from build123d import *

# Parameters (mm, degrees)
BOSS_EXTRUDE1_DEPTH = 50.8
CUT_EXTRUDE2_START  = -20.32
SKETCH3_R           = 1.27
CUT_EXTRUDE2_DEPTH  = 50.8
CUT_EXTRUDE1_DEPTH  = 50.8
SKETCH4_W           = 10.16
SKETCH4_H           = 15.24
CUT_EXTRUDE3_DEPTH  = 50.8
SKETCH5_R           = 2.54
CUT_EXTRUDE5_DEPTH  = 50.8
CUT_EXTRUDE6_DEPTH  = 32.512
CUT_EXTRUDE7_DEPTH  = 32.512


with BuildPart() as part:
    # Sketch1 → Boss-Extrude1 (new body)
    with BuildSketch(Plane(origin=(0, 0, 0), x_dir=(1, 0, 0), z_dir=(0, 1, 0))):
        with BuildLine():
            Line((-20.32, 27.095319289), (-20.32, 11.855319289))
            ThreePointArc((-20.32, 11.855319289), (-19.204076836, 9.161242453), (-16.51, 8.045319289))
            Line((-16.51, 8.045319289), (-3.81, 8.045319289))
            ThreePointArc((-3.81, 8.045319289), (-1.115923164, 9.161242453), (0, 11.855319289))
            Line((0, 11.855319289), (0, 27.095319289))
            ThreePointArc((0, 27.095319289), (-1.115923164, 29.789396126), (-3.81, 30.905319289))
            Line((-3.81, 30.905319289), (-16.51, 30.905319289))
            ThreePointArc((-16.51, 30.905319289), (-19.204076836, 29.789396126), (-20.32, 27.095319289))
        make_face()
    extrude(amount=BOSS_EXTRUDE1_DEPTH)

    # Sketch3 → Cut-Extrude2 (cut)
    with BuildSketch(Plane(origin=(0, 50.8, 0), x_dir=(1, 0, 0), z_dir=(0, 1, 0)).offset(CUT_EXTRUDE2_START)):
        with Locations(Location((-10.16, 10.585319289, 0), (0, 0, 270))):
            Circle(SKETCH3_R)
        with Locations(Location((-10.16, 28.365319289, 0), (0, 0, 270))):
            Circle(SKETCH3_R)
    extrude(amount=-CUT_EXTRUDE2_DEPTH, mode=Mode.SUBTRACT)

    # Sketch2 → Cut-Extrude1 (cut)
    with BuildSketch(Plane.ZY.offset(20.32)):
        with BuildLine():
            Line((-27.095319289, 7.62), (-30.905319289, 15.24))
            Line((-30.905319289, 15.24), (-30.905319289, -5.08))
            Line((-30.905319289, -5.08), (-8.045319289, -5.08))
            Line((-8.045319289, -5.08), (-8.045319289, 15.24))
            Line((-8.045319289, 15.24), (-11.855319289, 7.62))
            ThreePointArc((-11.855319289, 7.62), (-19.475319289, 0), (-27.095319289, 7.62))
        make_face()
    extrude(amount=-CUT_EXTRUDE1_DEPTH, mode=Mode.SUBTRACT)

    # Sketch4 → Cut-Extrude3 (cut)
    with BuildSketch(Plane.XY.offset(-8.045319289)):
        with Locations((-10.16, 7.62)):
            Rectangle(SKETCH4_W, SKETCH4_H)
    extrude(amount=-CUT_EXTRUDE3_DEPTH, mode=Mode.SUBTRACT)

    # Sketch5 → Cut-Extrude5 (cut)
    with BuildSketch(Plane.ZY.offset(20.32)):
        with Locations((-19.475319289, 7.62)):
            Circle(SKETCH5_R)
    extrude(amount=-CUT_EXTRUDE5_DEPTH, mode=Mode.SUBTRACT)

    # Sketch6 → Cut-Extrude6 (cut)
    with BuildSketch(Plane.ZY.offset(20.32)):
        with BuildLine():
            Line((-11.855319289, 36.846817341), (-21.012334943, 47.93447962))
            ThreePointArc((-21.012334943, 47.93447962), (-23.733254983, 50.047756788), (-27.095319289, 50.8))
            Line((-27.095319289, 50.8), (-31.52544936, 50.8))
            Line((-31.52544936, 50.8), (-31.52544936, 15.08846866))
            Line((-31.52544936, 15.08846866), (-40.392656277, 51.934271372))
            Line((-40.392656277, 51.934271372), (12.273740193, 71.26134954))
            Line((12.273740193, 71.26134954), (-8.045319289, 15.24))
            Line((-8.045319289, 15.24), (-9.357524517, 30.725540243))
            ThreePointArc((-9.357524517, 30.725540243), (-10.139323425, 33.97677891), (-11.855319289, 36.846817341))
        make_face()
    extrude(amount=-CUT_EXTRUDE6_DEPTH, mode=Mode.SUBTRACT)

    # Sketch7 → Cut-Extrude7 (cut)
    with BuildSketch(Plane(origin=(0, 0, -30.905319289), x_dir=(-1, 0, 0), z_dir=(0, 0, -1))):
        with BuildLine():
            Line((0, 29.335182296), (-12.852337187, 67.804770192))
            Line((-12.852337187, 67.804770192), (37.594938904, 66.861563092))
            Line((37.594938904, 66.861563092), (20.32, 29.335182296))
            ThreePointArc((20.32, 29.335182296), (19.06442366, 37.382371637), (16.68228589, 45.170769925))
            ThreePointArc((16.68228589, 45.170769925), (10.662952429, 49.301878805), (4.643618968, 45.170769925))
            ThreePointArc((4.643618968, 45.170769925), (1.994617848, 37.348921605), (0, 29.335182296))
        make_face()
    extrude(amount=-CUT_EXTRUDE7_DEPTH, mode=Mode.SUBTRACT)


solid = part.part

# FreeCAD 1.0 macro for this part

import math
import FreeCAD as App
import Part
import Sketcher
Q = App.Units.Quantity

doc = App.newDocument("Part")
body = doc.addObject("PartDesign::Body", "Body")

# Sketch on XZ plane
sketch1 = doc.addObject("Sketcher::SketchObject", "Sketch")
body.addObject(sketch1)
sketch1.AttachmentSupport = (doc.XZ_Plane, [""])
sketch1.MapMode = "FlatFace"
sketch1.addGeometry(Part.LineSegment(App.Vector(-20.3, -27.1, 0), App.Vector(-20.3, -11.9, 0)), False)
sketch1.addGeometry(Part.ArcOfCircle(Part.Circle(App.Vector(-16.5, -11.9, 0), App.Vector(0, 0, 1), 3.8), math.radians(90), math.radians(180)), False)
sketch1.addGeometry(Part.LineSegment(App.Vector(-16.5, -8, 0), App.Vector(-3.8, -8, 0)), False)
sketch1.addGeometry(Part.ArcOfCircle(Part.Circle(App.Vector(-3.8, -11.9, 0), App.Vector(0, 0, 1), 3.8), math.radians(0), math.radians(90)), False)
sketch1.addGeometry(Part.LineSegment(App.Vector(0, -11.9, 0), App.Vector(0, -27.1, 0)), False)
sketch1.addGeometry(Part.ArcOfCircle(Part.Circle(App.Vector(-3.8, -27.1, 0), App.Vector(0, 0, 1), 3.8), math.radians(-90), math.radians(0)), False)
sketch1.addGeometry(Part.LineSegment(App.Vector(-3.8, -30.9, 0), App.Vector(-16.5, -30.9, 0)), False)
sketch1.addGeometry(Part.ArcOfCircle(Part.Circle(App.Vector(-16.5, -27.1, 0), App.Vector(0, 0, 1), 3.8), math.radians(180), math.radians(270)), False)
sketch1.addConstraint(Sketcher.Constraint("Tangent", 0, 2, 1, 2))
sketch1.addConstraint(Sketcher.Constraint("Tangent", 1, 1, 2, 1))
sketch1.addConstraint(Sketcher.Constraint("Tangent", 2, 2, 3, 2))
sketch1.addConstraint(Sketcher.Constraint("Tangent", 3, 1, 4, 1))
sketch1.addConstraint(Sketcher.Constraint("Tangent", 4, 2, 5, 2))
sketch1.addConstraint(Sketcher.Constraint("Tangent", 5, 1, 6, 1))
sketch1.addConstraint(Sketcher.Constraint("Tangent", 6, 2, 7, 2))
sketch1.addConstraint(Sketcher.Constraint("Tangent", 7, 1, 0, 1))
sketch1.addConstraint(Sketcher.Constraint("Vertical", 0))
sketch1.addConstraint(Sketcher.Constraint("Horizontal", 2))
sketch1.addConstraint(Sketcher.Constraint("Vertical", 4))
sketch1.addConstraint(Sketcher.Constraint("Horizontal", 6))
sketch1.addConstraint(Sketcher.Constraint("Equal", 1, 3))
sketch1.addConstraint(Sketcher.Constraint("Equal", 3, 5))
sketch1.addConstraint(Sketcher.Constraint("Equal", 5, 7))
sketch1.addConstraint(Sketcher.Constraint("PointOnObject", 3, 1, -2))
sketch1.addConstraint(Sketcher.Constraint("Radius", 1, Q("0.15 in")))
sketch1.addConstraint(Sketcher.Constraint("DistanceX", 2, 1, 2, 2, Q("0.5 in")))
sketch1.addConstraint(Sketcher.Constraint("DistanceY", 0, 1, 0, 2, Q("0.6 in")))
sketch1.addConstraint(Sketcher.Constraint("DistanceY", 1, 3, -1, 1, 11.855319))
pad1 = doc.addObject("PartDesign::Pad", "Pad")
body.addObject(pad1)
pad1.Profile = sketch1
pad1.Length = Q("2 in")
pad1.Reversed = True

# Sketch on XZ plane
sketch2 = doc.addObject("Sketcher::SketchObject", "Sketch001")
body.addObject(sketch2)
sketch2.AttachmentSupport = (doc.XZ_Plane, [""])
sketch2.MapMode = "FlatFace"
sketch2.AttachmentOffset = App.Placement(App.Vector(0, 0, -1.2 * 25.4), App.Rotation())
sketch2.addGeometry(Part.Circle(App.Vector(-10.2, -10.6, 0), App.Vector(0, 0, 1), 1.3), False)
sketch2.addGeometry(Part.Circle(App.Vector(-10.2, -28.4, 0), App.Vector(0, 0, 1), 1.3), False)
sketch2.addConstraint(Sketcher.Constraint("Equal", 0, 1))
sketch2.addConstraint(Sketcher.Constraint("Vertical", 0, 3, 1, 3))
sketch2.addConstraint(Sketcher.Constraint("Diameter", 0, Q("0.1 in")))
sketch2.addConstraint(Sketcher.Constraint("DistanceX", 0, 3, -1, 1, Q("0.4 in")))
sketch2.addConstraint(Sketcher.Constraint("DistanceY", 1, 3, 0, 3, Q("0.7 in")))
sketch2.addConstraint(Sketcher.Constraint("DistanceY", 0, 3, -1, 1, 10.585319))
pocket1 = doc.addObject("PartDesign::Pocket", "Pocket")
body.addObject(pocket1)
pocket1.Profile = sketch2
pocket1.Length = Q("2 in")
pocket1.Reversed = True

# Sketch on YZ plane
sketch3 = doc.addObject("Sketcher::SketchObject", "Sketch002")
body.addObject(sketch3)
sketch3.AttachmentSupport = (doc.YZ_Plane, [""])
sketch3.MapMode = "FlatFace"
sketch3.AttachmentOffset = App.Placement(App.Vector(0, 0, -0.8 * 25.4), App.Rotation())
sketch3.addGeometry(Part.LineSegment(App.Vector(8, -27, 0), App.Vector(15, -31, 0)), False)
sketch3.addGeometry(Part.LineSegment(App.Vector(15, -31, 0), App.Vector(-5, -31, 0)), False)
sketch3.addGeometry(Part.LineSegment(App.Vector(-5, -31, 0), App.Vector(-5, -8, 0)), False)
sketch3.addGeometry(Part.LineSegment(App.Vector(-5, -8, 0), App.Vector(15, -8, 0)), False)
sketch3.addGeometry(Part.LineSegment(App.Vector(15, -8, 0), App.Vector(8, -12, 0)), False)
sketch3.addGeometry(Part.ArcOfCircle(Part.Circle(App.Vector(8, -19, 0), App.Vector(0, 0, 1), 8), math.radians(90), math.radians(270)), False)
sketch3.addConstraint(Sketcher.Constraint("Coincident", 0, 2, 1, 1))
sketch3.addConstraint(Sketcher.Constraint("Coincident", 1, 2, 2, 1))
sketch3.addConstraint(Sketcher.Constraint("Coincident", 2, 2, 3, 1))
sketch3.addConstraint(Sketcher.Constraint("Coincident", 3, 2, 4, 1))
sketch3.addConstraint(Sketcher.Constraint("Coincident", 4, 2, 5, 1))
sketch3.addConstraint(Sketcher.Constraint("Coincident", 5, 2, 0, 1))
sketch3.addConstraint(Sketcher.Constraint("Horizontal", 1))
sketch3.addConstraint(Sketcher.Constraint("Vertical", 2))
sketch3.addConstraint(Sketcher.Constraint("Horizontal", 3))
sketch3.addConstraint(Sketcher.Constraint("Vertical", 0, 2, 3, 2))
sketch3.addConstraint(Sketcher.Constraint("Vertical", 5, 3, 4, 2))
sketch3.addConstraint(Sketcher.Constraint("Vertical", 4, 2, 5, 2))
sketch3.addConstraint(Sketcher.Constraint("Equal", 0, 4))
sketch3.addConstraint(Sketcher.Constraint("Radius", 5, Q("0.3 in")))
sketch3.addConstraint(Sketcher.Constraint("DistanceX", 1, 2, 1, 1, Q("0.8 in")))
sketch3.addConstraint(Sketcher.Constraint("DistanceY", 2, 1, 2, 2, Q("0.9 in")))
sketch3.addConstraint(Sketcher.Constraint("DistanceX", -1, 1, 5, 3, Q("0.3 in")))
sketch3.addConstraint(Sketcher.Constraint("DistanceX", -1, 1, 0, 2, Q("0.6 in")))
sketch3.addConstraint(Sketcher.Constraint("DistanceY", 5, 3, -1, 1, 19.475319))
pocket2 = doc.addObject("PartDesign::Pocket", "Pocket001")
body.addObject(pocket2)
pocket2.Profile = sketch3
pocket2.Length = Q("2 in")
pocket2.Reversed = True

# Sketch on XY plane
sketch4 = doc.addObject("Sketcher::SketchObject", "Sketch003")
body.addObject(sketch4)
sketch4.AttachmentSupport = (doc.XY_Plane, [""])
sketch4.MapMode = "FlatFace"
sketch4.AttachmentOffset = App.Placement(App.Vector(0, 0, -8.045319), App.Rotation())
sketch4.addGeometry(Part.LineSegment(App.Vector(-15, 15, 0), App.Vector(-15, 0, 0)), False)
sketch4.addGeometry(Part.LineSegment(App.Vector(-15, 0, 0), App.Vector(-5, 0, 0)), False)
sketch4.addGeometry(Part.LineSegment(App.Vector(-5, 0, 0), App.Vector(-5, 15, 0)), False)
sketch4.addGeometry(Part.LineSegment(App.Vector(-5, 15, 0), App.Vector(-15, 15, 0)), False)
sketch4.addConstraint(Sketcher.Constraint("Coincident", 0, 2, 1, 1))
sketch4.addConstraint(Sketcher.Constraint("Coincident", 1, 2, 2, 1))
sketch4.addConstraint(Sketcher.Constraint("Coincident", 2, 2, 3, 1))
sketch4.addConstraint(Sketcher.Constraint("Coincident", 3, 2, 0, 1))
sketch4.addConstraint(Sketcher.Constraint("Vertical", 0))
sketch4.addConstraint(Sketcher.Constraint("Horizontal", 1))
sketch4.addConstraint(Sketcher.Constraint("Vertical", 2))
sketch4.addConstraint(Sketcher.Constraint("Horizontal", 3))
sketch4.addConstraint(Sketcher.Constraint("PointOnObject", 0, 2, -1))
sketch4.addConstraint(Sketcher.Constraint("DistanceX", 1, 1, 1, 2, Q("0.4 in")))
sketch4.addConstraint(Sketcher.Constraint("DistanceY", 0, 2, 0, 1, Q("0.6 in")))
sketch4.addConstraint(Sketcher.Constraint("DistanceX", 0, 2, -1, 1, Q("0.6 in")))
pocket3 = doc.addObject("PartDesign::Pocket", "Pocket002")
body.addObject(pocket3)
pocket3.Profile = sketch4
pocket3.Length = Q("2 in")

# Sketch on YZ plane
sketch5 = doc.addObject("Sketcher::SketchObject", "Sketch004")
body.addObject(sketch5)
sketch5.AttachmentSupport = (doc.YZ_Plane, [""])
sketch5.MapMode = "FlatFace"
sketch5.AttachmentOffset = App.Placement(App.Vector(0, 0, -0.8 * 25.4), App.Rotation())
sketch5.addGeometry(Part.Circle(App.Vector(7.6, -19.5, 0), App.Vector(0, 0, 1), 2.5), False)
sketch5.addConstraint(Sketcher.Constraint("Diameter", 0, Q("0.2 in")))
sketch5.addConstraint(Sketcher.Constraint("DistanceX", -1, 1, 0, 3, Q("0.3 in")))
sketch5.addConstraint(Sketcher.Constraint("DistanceY", 0, 3, -1, 1, 19.475319))
pocket4 = doc.addObject("PartDesign::Pocket", "Pocket003")
body.addObject(pocket4)
pocket4.Profile = sketch5
pocket4.Length = Q("2 in")
pocket4.Reversed = True

# Sketch on YZ plane
sketch6 = doc.addObject("Sketcher::SketchObject", "Sketch005")
body.addObject(sketch6)
sketch6.AttachmentSupport = (doc.YZ_Plane, [""])
sketch6.MapMode = "FlatFace"
sketch6.AttachmentOffset = App.Placement(App.Vector(0, 0, -0.8 * 25.4), App.Rotation())
sketch6.addGeometry(Part.LineSegment(App.Vector(47.9, -21, 0), App.Vector(36.8, -11.9, 0)), False)
sketch6.addGeometry(Part.ArcOfCircle(Part.Circle(App.Vector(29.8, -20.4, 0), App.Vector(0, 0, 1), 11.1), math.radians(50), math.radians(85)), False)
sketch6.addGeometry(Part.LineSegment(App.Vector(30.7, -9.4, 0), App.Vector(15.2, -8, 0)), False)
sketch6.addGeometry(Part.LineSegment(App.Vector(15.2, -8, 0), App.Vector(71.3, 12.3, 0)), False)
sketch6.addGeometry(Part.LineSegment(App.Vector(71.3, 12.3, 0), App.Vector(51.9, -40.4, 0)), False)
sketch6.addGeometry(Part.LineSegment(App.Vector(51.9, -40.4, 0), App.Vector(15.1, -31.5, 0)), False)
sketch6.addGeometry(Part.LineSegment(App.Vector(15.1, -31.5, 0), App.Vector(50.8, -31.5, 0)), False)
sketch6.addGeometry(Part.LineSegment(App.Vector(50.8, -31.5, 0), App.Vector(50.8, -27.1, 0)), False)
sketch6.addGeometry(Part.ArcOfCircle(Part.Circle(App.Vector(42.9, -27.1, 0), App.Vector(0, 0, 1), 7.9), math.radians(0), math.radians(50)), False)
sketch6.addConstraint(Sketcher.Constraint("Tangent", 0, 2, 1, 1))
sketch6.addConstraint(Sketcher.Constraint("Tangent", 1, 2, 2, 1))
sketch6.addConstraint(Sketcher.Constraint("Coincident", 2, 2, 3, 1))
sketch6.addConstraint(Sketcher.Constraint("Coincident", 3, 2, 4, 1))
sketch6.addConstraint(Sketcher.Constraint("Coincident", 4, 2, 5, 1))
sketch6.addConstraint(Sketcher.Constraint("Coincident", 5, 2, 6, 1))
sketch6.addConstraint(Sketcher.Constraint("Coincident", 6, 2, 7, 1))
sketch6.addConstraint(Sketcher.Constraint("Tangent", 7, 2, 8, 1))
sketch6.addConstraint(Sketcher.Constraint("Tangent", 8, 2, 0, 1))
sketch6.addConstraint(Sketcher.Constraint("Horizontal", 6))
sketch6.addConstraint(Sketcher.Constraint("Vertical", 7))
sketch6.addConstraint(Sketcher.Constraint("DistanceX", -1, 1, 6, 2, Q("2 in")))
sketch6.addConstraint(Sketcher.Constraint("DistanceX", -1, 1, 2, 2, Q("0.6 in")))
sketch6.addConstraint(Sketcher.Constraint("DistanceY", 8, 3, 0, 2, Q("0.6 in")))
sketch6.addConstraint(Sketcher.Constraint("Radius", 8, 7.889301))
sketch6.addConstraint(Sketcher.Constraint("DistanceY", 0, 2, 2, 2, Q("0.15 in")))
sketch6.addConstraint(Sketcher.Constraint("Radius", 1, 11.082261))
sketch6.addConstraint(Sketcher.Constraint("DistanceX", 6, 1, 6, 2, 35.711531))
sketch6.addConstraint(Sketcher.Constraint("DistanceY", 7, 1, 7, 2, 4.43013))
sketch6.addConstraint(Sketcher.Constraint("Distance", 4, 56.100671))
sketch6.addConstraint(Sketcher.Constraint("DistanceX", -1, 1, 1, 3, 29.789811))
sketch6.addConstraint(Sketcher.Constraint("DistanceY", 1, 3, -1, 1, 20.40021))
sketch6.addConstraint(Sketcher.Constraint("DistanceX", -1, 1, 3, 2, 71.26135))
sketch6.addConstraint(Sketcher.Constraint("DistanceY", -1, 1, 3, 2, 12.27374))
sketch6.addConstraint(Sketcher.Constraint("DistanceX", -1, 1, 4, 2, 51.934271))
pocket5 = doc.addObject("PartDesign::Pocket", "Pocket004")
body.addObject(pocket5)
pocket5.Profile = sketch6
pocket5.Length = Q("1.28 in")
pocket5.Reversed = True

# Sketch on XY plane
sketch7 = doc.addObject("Sketcher::SketchObject", "Sketch006")
body.addObject(sketch7)
sketch7.AttachmentSupport = (doc.XY_Plane, [""])
sketch7.MapMode = "FlatFace"
sketch7.AttachmentOffset = App.Placement(App.Vector(0, 0, -30.905319), App.Rotation())
sketch7.addGeometry(Part.LineSegment(App.Vector(13, 68, 0), App.Vector(0, 29, 0)), False)
sketch7.addGeometry(Part.ArcOfCircle(Part.Circle(App.Vector(-98, 9, 0), App.Vector(0, 0, 1), 100), math.radians(11.61), math.radians(21.08)), False)
sketch7.addGeometry(Part.ArcOfCircle(Part.Circle(App.Vector(-11, 43, 0), App.Vector(0, 0, 1), 6), math.radians(21), math.radians(159)), False)
sketch7.addGeometry(Part.ArcOfCircle(Part.Circle(App.Vector(37, 25, 0), App.Vector(0, 0, 1), 57), math.radians(158.92), math.radians(175.2)), False)
sketch7.addGeometry(Part.LineSegment(App.Vector(-20, 29, 0), App.Vector(-38, 67, 0)), False)
sketch7.addGeometry(Part.LineSegment(App.Vector(-38, 67, 0), App.Vector(13, 68, 0)), False)
sketch7.addConstraint(Sketcher.Constraint("Coincident", 0, 2, 1, 1))
sketch7.addConstraint(Sketcher.Constraint("Tangent", 1, 2, 2, 1))
sketch7.addConstraint(Sketcher.Constraint("Tangent", 2, 2, 3, 1))
sketch7.addConstraint(Sketcher.Constraint("Coincident", 3, 2, 4, 1))
sketch7.addConstraint(Sketcher.Constraint("Coincident", 4, 2, 5, 1))
sketch7.addConstraint(Sketcher.Constraint("Coincident", 5, 2, 0, 1))
sketch7.addConstraint(Sketcher.Constraint("PointOnObject", 0, 2, -2))
sketch7.addConstraint(Sketcher.Constraint("Horizontal", 0, 2, 3, 2))
sketch7.addConstraint(Sketcher.Constraint("DistanceX", 3, 2, -1, 1, Q("0.8 in")))
sketch7.addConstraint(Sketcher.Constraint("Radius", 1, 100.006899))
sketch7.addConstraint(Sketcher.Constraint("Radius", 2, 6.450863))
sketch7.addConstraint(Sketcher.Constraint("Radius", 3, 57.386896))
sketch7.addConstraint(Sketcher.Constraint("DistanceY", 1, 2, 5, 2, 22.634))
sketch7.addConstraint(Sketcher.Constraint("DistanceY", 2, 2, 5, 2, 22.634))
sketch7.addConstraint(Sketcher.Constraint("Distance", 0, 40.559731))
sketch7.addConstraint(Sketcher.Constraint("DistanceX", 1, 3, -1, 1, 97.960569))
sketch7.addConstraint(Sketcher.Constraint("DistanceY", -1, 1, 1, 3, 9.207919))
sketch7.addConstraint(Sketcher.Constraint("DistanceX", 4, 2, -1, 1, 37.594939))
sketch7.addConstraint(Sketcher.Constraint("DistanceY", 3, 2, 4, 2, 37.526381))
pocket6 = doc.addObject("PartDesign::Pocket", "Pocket005")
body.addObject(pocket6)
pocket6.Profile = sketch7
pocket6.Length = Q("1.28 in")
pocket6.Reversed = True

doc.recompute()
